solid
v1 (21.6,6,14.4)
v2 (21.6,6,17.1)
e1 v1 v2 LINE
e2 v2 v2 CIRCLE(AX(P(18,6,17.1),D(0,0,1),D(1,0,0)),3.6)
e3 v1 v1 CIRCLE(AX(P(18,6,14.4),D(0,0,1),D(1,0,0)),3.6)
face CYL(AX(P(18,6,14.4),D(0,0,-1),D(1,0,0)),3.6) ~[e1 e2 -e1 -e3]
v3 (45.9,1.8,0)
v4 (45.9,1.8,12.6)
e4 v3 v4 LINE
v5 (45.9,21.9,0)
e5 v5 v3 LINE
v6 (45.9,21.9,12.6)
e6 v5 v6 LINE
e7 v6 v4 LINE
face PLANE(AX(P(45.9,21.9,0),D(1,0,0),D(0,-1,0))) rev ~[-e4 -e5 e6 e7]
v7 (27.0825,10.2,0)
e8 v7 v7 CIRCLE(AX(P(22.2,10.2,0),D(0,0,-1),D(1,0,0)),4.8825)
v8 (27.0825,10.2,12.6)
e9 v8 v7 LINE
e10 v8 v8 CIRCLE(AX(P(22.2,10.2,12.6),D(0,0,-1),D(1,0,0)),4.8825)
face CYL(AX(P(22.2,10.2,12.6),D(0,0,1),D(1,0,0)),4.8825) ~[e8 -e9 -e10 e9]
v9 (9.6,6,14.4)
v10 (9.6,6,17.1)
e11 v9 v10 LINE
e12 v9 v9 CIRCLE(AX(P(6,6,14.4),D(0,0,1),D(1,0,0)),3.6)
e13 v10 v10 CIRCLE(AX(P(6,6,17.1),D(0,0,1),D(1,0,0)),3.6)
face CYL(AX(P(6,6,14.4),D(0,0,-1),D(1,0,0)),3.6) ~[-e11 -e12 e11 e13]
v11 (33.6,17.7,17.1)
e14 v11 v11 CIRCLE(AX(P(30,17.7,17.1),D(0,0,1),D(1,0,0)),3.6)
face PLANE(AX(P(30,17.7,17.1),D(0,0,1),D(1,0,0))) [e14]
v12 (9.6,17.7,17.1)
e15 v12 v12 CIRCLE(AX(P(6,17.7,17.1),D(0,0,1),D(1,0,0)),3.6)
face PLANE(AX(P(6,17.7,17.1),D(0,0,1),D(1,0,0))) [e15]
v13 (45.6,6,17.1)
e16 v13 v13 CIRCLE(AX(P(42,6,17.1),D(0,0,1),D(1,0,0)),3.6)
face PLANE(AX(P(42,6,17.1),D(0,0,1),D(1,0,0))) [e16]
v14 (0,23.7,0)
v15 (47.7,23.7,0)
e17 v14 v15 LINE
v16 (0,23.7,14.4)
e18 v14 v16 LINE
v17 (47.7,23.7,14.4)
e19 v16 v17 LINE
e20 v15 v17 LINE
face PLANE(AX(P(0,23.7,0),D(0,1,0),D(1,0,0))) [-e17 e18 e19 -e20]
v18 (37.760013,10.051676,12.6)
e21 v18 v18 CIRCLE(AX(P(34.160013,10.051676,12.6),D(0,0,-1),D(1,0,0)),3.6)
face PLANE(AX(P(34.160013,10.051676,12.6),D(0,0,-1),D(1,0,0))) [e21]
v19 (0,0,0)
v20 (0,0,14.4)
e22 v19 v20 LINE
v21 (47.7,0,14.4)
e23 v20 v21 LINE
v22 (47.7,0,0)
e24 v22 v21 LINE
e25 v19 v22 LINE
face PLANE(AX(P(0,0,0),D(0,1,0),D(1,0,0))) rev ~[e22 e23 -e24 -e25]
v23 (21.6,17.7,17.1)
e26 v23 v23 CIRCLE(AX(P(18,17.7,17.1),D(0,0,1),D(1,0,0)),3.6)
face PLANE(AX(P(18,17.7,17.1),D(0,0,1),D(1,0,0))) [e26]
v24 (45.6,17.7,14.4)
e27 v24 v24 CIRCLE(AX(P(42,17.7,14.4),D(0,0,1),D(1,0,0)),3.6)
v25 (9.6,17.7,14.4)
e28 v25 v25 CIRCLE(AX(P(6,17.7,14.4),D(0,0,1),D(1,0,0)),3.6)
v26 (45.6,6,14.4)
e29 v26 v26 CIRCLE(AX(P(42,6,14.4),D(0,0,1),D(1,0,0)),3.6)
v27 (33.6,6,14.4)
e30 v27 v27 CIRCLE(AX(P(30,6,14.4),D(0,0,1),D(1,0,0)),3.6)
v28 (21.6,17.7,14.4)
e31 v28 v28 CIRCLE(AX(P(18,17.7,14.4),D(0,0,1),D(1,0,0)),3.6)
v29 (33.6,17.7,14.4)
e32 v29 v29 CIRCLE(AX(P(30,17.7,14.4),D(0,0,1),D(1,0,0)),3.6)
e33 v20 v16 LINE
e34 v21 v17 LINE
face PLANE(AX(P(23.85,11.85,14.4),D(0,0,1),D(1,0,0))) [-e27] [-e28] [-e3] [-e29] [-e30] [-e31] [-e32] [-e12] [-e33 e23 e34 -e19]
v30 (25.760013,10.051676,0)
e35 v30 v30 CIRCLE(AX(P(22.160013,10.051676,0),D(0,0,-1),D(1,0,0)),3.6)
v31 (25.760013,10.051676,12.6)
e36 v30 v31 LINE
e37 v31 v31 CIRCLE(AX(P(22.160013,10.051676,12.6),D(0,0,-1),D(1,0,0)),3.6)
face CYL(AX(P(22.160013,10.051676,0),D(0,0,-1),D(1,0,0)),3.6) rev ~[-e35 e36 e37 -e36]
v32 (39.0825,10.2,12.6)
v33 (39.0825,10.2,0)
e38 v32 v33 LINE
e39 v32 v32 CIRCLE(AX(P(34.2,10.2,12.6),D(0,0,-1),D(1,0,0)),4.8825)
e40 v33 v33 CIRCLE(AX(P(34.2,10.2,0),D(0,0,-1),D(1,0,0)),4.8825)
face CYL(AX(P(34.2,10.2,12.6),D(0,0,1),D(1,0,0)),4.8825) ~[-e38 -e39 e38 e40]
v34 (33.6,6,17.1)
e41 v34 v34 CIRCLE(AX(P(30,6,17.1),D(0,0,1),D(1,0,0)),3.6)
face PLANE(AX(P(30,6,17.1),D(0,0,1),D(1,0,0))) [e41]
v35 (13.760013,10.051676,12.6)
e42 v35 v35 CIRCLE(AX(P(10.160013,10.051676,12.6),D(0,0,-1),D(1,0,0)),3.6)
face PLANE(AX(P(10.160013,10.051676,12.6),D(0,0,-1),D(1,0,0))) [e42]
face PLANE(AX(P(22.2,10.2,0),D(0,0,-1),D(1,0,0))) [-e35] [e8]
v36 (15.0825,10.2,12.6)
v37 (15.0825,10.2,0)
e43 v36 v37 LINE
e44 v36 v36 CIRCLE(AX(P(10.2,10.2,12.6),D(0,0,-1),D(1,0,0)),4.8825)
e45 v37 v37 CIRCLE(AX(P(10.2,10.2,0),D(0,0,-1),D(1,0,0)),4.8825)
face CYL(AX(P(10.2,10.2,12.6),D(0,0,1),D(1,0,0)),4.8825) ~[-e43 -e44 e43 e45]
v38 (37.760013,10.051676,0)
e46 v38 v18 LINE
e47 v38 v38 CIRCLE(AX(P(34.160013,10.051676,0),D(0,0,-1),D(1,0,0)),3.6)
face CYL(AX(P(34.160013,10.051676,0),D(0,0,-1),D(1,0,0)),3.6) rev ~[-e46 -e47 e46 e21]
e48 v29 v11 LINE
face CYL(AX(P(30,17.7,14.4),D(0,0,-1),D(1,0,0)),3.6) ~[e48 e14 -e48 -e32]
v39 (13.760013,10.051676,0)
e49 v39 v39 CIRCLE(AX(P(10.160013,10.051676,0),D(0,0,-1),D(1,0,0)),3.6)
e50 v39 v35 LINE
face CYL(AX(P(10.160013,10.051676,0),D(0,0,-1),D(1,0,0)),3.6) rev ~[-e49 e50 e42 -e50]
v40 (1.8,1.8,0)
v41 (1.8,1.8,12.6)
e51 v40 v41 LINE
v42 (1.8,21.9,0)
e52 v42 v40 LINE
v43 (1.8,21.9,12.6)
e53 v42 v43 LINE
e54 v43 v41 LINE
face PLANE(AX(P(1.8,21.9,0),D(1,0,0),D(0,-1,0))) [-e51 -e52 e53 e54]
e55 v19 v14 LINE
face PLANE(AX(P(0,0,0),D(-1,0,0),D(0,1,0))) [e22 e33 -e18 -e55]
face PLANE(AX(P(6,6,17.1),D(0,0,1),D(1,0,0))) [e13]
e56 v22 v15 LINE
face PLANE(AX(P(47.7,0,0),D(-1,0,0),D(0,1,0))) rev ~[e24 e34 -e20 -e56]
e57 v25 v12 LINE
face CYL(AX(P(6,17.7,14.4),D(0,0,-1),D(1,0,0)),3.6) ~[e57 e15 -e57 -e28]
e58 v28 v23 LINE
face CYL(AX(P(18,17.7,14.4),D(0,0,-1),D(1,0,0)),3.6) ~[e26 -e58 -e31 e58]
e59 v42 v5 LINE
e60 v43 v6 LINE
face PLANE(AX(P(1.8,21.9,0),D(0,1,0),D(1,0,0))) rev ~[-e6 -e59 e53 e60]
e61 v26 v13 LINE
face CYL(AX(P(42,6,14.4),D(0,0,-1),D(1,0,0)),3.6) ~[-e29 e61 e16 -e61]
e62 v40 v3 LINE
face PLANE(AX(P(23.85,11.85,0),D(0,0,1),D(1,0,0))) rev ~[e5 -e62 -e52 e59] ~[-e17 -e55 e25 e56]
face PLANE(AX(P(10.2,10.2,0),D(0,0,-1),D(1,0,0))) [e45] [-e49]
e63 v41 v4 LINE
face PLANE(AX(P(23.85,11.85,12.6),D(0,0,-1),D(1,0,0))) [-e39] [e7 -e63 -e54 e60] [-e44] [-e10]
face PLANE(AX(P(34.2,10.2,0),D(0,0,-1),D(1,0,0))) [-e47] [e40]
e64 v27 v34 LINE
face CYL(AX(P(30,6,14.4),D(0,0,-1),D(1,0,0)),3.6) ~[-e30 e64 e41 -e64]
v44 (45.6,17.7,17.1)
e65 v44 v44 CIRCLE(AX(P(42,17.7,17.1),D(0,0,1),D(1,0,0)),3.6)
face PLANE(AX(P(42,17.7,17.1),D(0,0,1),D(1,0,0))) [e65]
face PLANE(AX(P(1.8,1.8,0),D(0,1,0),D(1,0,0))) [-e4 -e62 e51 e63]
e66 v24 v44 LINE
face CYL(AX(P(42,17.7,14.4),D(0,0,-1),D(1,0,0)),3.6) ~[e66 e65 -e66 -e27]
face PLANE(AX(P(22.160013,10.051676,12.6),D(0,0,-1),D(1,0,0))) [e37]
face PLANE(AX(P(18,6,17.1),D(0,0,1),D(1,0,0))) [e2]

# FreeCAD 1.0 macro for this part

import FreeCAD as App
import Part
import Sketcher
from FreeCAD import Vector
Q = App.Units.Quantity

doc = App.newDocument("Part")
body = doc.addObject("PartDesign::Body", "Body")

# Sketch on XY plane
sketch1 = body.newObject("Sketcher::SketchObject", "Sketch")
sketch1.AttachmentSupport = (doc.getObject("XY_Plane"), [""])
sketch1.MapMode = "FlatFace"
sketch1.addGeometry([
    Part.LineSegment(Vector(0, 24, 0), Vector(0, 0, 0)),
    Part.LineSegment(Vector(0, 0, 0), Vector(48, 0, 0)),
    Part.LineSegment(Vector(48, 0, 0), Vector(48, 24, 0)),
    Part.LineSegment(Vector(48, 24, 0), Vector(0, 24, 0)),
], False)
sketch1.addConstraint([
    Sketcher.Constraint("Coincident", 0, 2, 1, 1),
    Sketcher.Constraint("Coincident", 1, 2, 2, 1),
    Sketcher.Constraint("Coincident", 2, 2, 3, 1),
    Sketcher.Constraint("Coincident", 3, 2, 0, 1),
    Sketcher.Constraint("Vertical", 0),
    Sketcher.Constraint("Horizontal", 1),
    Sketcher.Constraint("Vertical", 2),
    Sketcher.Constraint("Horizontal", 3),
    Sketcher.Constraint("Coincident", 0, 2, -1, 1),
    Sketcher.Constraint("DistanceX", 1, 1, 1, 2, Q("47.7 mm")),
    Sketcher.Constraint("DistanceY", 0, 2, 0, 1, Q("23.7 mm")),
])
pad1 = body.newObject("PartDesign::Pad", "Pad")
pad1.Profile = sketch1
pad1.Length = 14.4

# Sketch on XY plane
sketch2 = body.newObject("Sketcher::SketchObject", "Sketch001")
sketch2.AttachmentSupport = (doc.getObject("XY_Plane"), [""])
sketch2.MapMode = "FlatFace"
sketch2.addGeometry([
    Part.LineSegment(Vector(2, 2, 0), Vector(2, 22, 0)),
    Part.LineSegment(Vector(2, 22, 0), Vector(46, 22, 0)),
    Part.LineSegment(Vector(46, 22, 0), Vector(46, 2, 0)),
    Part.LineSegment(Vector(46, 2, 0), Vector(2, 2, 0)),
], False)
sketch2.addConstraint([
    Sketcher.Constraint("Coincident", 0, 2, 1, 1),
    Sketcher.Constraint("Coincident", 1, 2, 2, 1),
    Sketcher.Constraint("Coincident", 2, 2, 3, 1),
    Sketcher.Constraint("Coincident", 3, 2, 0, 1),
    Sketcher.Constraint("Vertical", 0),
    Sketcher.Constraint("Horizontal", 1),
    Sketcher.Constraint("Vertical", 2),
    Sketcher.Constraint("Horizontal", 3),
    Sketcher.Constraint("DistanceX", 1, 1, 1, 2, Q("44.1 mm")),
    Sketcher.Constraint("DistanceY", 0, 1, 0, 2, Q("20.1 mm")),
    Sketcher.Constraint("DistanceX", -1, 1, 0, 2, Q("1.8 mm")),
    Sketcher.Constraint("DistanceY", -1, 1, 0, 2, Q("21.9 mm")),
])
pocket1 = body.newObject("PartDesign::Pocket", "Pocket")
pocket1.Profile = sketch2
pocket1.Length = 12.6
pocket1.Reversed = True

# Sketch on XY plane
sketch3 = body.newObject("Sketcher::SketchObject", "Sketch002")
sketch3.AttachmentSupport = (doc.getObject("XY_Plane"), [""])
sketch3.MapMode = "FlatFace"
sketch3.AttachmentOffset = App.Placement(Vector(0, 0, 14.4), App.Rotation())
sketch3.addGeometry([
    Part.Circle(Vector(6, 17.7, 0), Vector(0, 0, 1), 3.6),
    Part.Circle(Vector(6, 6, 0), Vector(0, 0, 1), 3.6),
], False)
sketch3.addConstraint([
    Sketcher.Constraint("Equal", 0, 1),
    Sketcher.Constraint("Vertical", 0, 3, 1, 3),
    Sketcher.Constraint("Diameter", 0, Q("7.2 mm")),
    Sketcher.Constraint("DistanceX", -1, 1, 0, 3, Q("6 mm")),
    Sketcher.Constraint("DistanceY", -1, 1, 1, 3, Q("6 mm")),
    Sketcher.Constraint("DistanceY", -1, 1, 0, 3, Q("17.7 mm")),
])
pad2 = body.newObject("PartDesign::Pad", "Pad001")
pad2.Profile = sketch3
pad2.Length = 2.7
doc.recompute()

linearpattern = body.newObject("PartDesign::LinearPattern", "LinearPattern")
linearpattern.Originals = [pad2]
linearpattern.Direction = (doc.getObject("X_Axis"), [""])
linearpattern.Mode = "offset"
linearpattern.Offset = 12
linearpattern.Occurrences = 4
body.Tip = linearpattern

# Sketch on XY plane
sketch4 = body.newObject("Sketcher::SketchObject", "Sketch003")
sketch4.AttachmentSupport = (doc.getObject("XY_Plane"), [""])
sketch4.MapMode = "FlatFace"
sketch4.AttachmentOffset = App.Placement(Vector(0, 0, 12.6), App.Rotation())
sketch4.addGeometry(Part.Circle(Vector(10.2, 10.2, 0), Vector(0, 0, 1), 4.9), False)
sketch4.addConstraint([
    Sketcher.Constraint("Diameter", 0, Q("9.765 mm")),
    Sketcher.Constraint("DistanceX", -1, 1, 0, 3, Q("10.2 mm")),
    Sketcher.Constraint("DistanceY", -1, 1, 0, 3, Q("10.2 mm")),
])
pad3 = body.newObject("PartDesign::Pad", "Pad002")
pad3.Profile = sketch4
pad3.Length = 12.6
pad3.Reversed = True
doc.recompute()

linearpattern2 = body.newObject("PartDesign::LinearPattern", "LinearPattern001")
linearpattern2.Originals = [pad3]
linearpattern2.Direction = (doc.getObject("X_Axis"), [""])
linearpattern2.Mode = "offset"
linearpattern2.Offset = 12
linearpattern2.Occurrences = 3
body.Tip = linearpattern2

# Sketch on XY plane
sketch5 = body.newObject("Sketcher::SketchObject", "Sketch004")
sketch5.AttachmentSupport = (doc.getObject("XY_Plane"), [""])
sketch5.MapMode = "FlatFace"
sketch5.addGeometry(Part.Circle(Vector(10.2, 10.1, 0), Vector(0, 0, 1), 3.6), False)
sketch5.addConstraint([
    Sketcher.Constraint("Diameter", 0, Q("7.2 mm")),
    Sketcher.Constraint("DistanceX", -1, 1, 0, 3, Q("10.160013 mm")),
    Sketcher.Constraint("DistanceY", -1, 1, 0, 3, Q("10.051676 mm")),
])
pocket2 = body.newObject("PartDesign::Pocket", "Pocket001")
pocket2.Profile = sketch5
pocket2.Length = 12.6
pocket2.Reversed = True
doc.recompute()

linearpattern3 = body.newObject("PartDesign::LinearPattern", "LinearPattern002")
linearpattern3.Originals = [pocket2]
linearpattern3.Direction = (doc.getObject("X_Axis"), [""])
linearpattern3.Mode = "offset"
linearpattern3.Offset = 12
linearpattern3.Occurrences = 3
body.Tip = linearpattern3

doc.recompute()
